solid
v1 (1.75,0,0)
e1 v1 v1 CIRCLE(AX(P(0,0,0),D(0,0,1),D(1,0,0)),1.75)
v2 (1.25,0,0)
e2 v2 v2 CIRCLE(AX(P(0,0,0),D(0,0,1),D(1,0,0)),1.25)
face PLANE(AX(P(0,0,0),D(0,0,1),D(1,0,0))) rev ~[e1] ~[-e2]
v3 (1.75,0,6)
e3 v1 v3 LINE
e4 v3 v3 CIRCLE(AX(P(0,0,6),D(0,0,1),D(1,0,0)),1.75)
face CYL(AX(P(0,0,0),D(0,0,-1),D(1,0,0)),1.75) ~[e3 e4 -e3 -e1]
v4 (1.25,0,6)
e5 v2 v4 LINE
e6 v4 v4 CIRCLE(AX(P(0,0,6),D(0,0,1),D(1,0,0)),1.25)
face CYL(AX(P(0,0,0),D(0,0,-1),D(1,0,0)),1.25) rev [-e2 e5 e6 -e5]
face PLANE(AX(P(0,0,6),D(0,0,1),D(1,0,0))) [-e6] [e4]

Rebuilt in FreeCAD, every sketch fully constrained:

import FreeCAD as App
import Part
import Sketcher
from FreeCAD import Vector
Q = App.Units.Quantity

doc = App.newDocument("Part")
body = doc.addObject("PartDesign::Body", "Body")

sketch1 = doc.addObject("Sketcher::SketchObject", "Sketch")
body.addObject(sketch1)
sketch1.AttachmentSupport = (doc.XY_Plane, [""])
sketch1.MapMode = "FlatFace"
sketch1.addGeometry([
    Part.Circle(Vector(0, 0, 0), Vector(0, 0, 1), 1.8),
    Part.Circle(Vector(0, 0, 0), Vector(0, 0, 1), 1.2),
], False)
sketch1.addConstraint([
    Sketcher.Constraint("Coincident", 0, 3, -1, 1),
    Sketcher.Constraint("Coincident", 1, 3, -1, 1),
    Sketcher.Constraint("Diameter", 0, Q("3.5 mm")),
    Sketcher.Constraint("Diameter", 1, Q("2.5 mm")),
])
pad1 = doc.addObject("PartDesign::Pad", "Pad")
body.addObject(pad1)
pad1.Profile = sketch1
pad1.Length = 6

doc.recompute()
